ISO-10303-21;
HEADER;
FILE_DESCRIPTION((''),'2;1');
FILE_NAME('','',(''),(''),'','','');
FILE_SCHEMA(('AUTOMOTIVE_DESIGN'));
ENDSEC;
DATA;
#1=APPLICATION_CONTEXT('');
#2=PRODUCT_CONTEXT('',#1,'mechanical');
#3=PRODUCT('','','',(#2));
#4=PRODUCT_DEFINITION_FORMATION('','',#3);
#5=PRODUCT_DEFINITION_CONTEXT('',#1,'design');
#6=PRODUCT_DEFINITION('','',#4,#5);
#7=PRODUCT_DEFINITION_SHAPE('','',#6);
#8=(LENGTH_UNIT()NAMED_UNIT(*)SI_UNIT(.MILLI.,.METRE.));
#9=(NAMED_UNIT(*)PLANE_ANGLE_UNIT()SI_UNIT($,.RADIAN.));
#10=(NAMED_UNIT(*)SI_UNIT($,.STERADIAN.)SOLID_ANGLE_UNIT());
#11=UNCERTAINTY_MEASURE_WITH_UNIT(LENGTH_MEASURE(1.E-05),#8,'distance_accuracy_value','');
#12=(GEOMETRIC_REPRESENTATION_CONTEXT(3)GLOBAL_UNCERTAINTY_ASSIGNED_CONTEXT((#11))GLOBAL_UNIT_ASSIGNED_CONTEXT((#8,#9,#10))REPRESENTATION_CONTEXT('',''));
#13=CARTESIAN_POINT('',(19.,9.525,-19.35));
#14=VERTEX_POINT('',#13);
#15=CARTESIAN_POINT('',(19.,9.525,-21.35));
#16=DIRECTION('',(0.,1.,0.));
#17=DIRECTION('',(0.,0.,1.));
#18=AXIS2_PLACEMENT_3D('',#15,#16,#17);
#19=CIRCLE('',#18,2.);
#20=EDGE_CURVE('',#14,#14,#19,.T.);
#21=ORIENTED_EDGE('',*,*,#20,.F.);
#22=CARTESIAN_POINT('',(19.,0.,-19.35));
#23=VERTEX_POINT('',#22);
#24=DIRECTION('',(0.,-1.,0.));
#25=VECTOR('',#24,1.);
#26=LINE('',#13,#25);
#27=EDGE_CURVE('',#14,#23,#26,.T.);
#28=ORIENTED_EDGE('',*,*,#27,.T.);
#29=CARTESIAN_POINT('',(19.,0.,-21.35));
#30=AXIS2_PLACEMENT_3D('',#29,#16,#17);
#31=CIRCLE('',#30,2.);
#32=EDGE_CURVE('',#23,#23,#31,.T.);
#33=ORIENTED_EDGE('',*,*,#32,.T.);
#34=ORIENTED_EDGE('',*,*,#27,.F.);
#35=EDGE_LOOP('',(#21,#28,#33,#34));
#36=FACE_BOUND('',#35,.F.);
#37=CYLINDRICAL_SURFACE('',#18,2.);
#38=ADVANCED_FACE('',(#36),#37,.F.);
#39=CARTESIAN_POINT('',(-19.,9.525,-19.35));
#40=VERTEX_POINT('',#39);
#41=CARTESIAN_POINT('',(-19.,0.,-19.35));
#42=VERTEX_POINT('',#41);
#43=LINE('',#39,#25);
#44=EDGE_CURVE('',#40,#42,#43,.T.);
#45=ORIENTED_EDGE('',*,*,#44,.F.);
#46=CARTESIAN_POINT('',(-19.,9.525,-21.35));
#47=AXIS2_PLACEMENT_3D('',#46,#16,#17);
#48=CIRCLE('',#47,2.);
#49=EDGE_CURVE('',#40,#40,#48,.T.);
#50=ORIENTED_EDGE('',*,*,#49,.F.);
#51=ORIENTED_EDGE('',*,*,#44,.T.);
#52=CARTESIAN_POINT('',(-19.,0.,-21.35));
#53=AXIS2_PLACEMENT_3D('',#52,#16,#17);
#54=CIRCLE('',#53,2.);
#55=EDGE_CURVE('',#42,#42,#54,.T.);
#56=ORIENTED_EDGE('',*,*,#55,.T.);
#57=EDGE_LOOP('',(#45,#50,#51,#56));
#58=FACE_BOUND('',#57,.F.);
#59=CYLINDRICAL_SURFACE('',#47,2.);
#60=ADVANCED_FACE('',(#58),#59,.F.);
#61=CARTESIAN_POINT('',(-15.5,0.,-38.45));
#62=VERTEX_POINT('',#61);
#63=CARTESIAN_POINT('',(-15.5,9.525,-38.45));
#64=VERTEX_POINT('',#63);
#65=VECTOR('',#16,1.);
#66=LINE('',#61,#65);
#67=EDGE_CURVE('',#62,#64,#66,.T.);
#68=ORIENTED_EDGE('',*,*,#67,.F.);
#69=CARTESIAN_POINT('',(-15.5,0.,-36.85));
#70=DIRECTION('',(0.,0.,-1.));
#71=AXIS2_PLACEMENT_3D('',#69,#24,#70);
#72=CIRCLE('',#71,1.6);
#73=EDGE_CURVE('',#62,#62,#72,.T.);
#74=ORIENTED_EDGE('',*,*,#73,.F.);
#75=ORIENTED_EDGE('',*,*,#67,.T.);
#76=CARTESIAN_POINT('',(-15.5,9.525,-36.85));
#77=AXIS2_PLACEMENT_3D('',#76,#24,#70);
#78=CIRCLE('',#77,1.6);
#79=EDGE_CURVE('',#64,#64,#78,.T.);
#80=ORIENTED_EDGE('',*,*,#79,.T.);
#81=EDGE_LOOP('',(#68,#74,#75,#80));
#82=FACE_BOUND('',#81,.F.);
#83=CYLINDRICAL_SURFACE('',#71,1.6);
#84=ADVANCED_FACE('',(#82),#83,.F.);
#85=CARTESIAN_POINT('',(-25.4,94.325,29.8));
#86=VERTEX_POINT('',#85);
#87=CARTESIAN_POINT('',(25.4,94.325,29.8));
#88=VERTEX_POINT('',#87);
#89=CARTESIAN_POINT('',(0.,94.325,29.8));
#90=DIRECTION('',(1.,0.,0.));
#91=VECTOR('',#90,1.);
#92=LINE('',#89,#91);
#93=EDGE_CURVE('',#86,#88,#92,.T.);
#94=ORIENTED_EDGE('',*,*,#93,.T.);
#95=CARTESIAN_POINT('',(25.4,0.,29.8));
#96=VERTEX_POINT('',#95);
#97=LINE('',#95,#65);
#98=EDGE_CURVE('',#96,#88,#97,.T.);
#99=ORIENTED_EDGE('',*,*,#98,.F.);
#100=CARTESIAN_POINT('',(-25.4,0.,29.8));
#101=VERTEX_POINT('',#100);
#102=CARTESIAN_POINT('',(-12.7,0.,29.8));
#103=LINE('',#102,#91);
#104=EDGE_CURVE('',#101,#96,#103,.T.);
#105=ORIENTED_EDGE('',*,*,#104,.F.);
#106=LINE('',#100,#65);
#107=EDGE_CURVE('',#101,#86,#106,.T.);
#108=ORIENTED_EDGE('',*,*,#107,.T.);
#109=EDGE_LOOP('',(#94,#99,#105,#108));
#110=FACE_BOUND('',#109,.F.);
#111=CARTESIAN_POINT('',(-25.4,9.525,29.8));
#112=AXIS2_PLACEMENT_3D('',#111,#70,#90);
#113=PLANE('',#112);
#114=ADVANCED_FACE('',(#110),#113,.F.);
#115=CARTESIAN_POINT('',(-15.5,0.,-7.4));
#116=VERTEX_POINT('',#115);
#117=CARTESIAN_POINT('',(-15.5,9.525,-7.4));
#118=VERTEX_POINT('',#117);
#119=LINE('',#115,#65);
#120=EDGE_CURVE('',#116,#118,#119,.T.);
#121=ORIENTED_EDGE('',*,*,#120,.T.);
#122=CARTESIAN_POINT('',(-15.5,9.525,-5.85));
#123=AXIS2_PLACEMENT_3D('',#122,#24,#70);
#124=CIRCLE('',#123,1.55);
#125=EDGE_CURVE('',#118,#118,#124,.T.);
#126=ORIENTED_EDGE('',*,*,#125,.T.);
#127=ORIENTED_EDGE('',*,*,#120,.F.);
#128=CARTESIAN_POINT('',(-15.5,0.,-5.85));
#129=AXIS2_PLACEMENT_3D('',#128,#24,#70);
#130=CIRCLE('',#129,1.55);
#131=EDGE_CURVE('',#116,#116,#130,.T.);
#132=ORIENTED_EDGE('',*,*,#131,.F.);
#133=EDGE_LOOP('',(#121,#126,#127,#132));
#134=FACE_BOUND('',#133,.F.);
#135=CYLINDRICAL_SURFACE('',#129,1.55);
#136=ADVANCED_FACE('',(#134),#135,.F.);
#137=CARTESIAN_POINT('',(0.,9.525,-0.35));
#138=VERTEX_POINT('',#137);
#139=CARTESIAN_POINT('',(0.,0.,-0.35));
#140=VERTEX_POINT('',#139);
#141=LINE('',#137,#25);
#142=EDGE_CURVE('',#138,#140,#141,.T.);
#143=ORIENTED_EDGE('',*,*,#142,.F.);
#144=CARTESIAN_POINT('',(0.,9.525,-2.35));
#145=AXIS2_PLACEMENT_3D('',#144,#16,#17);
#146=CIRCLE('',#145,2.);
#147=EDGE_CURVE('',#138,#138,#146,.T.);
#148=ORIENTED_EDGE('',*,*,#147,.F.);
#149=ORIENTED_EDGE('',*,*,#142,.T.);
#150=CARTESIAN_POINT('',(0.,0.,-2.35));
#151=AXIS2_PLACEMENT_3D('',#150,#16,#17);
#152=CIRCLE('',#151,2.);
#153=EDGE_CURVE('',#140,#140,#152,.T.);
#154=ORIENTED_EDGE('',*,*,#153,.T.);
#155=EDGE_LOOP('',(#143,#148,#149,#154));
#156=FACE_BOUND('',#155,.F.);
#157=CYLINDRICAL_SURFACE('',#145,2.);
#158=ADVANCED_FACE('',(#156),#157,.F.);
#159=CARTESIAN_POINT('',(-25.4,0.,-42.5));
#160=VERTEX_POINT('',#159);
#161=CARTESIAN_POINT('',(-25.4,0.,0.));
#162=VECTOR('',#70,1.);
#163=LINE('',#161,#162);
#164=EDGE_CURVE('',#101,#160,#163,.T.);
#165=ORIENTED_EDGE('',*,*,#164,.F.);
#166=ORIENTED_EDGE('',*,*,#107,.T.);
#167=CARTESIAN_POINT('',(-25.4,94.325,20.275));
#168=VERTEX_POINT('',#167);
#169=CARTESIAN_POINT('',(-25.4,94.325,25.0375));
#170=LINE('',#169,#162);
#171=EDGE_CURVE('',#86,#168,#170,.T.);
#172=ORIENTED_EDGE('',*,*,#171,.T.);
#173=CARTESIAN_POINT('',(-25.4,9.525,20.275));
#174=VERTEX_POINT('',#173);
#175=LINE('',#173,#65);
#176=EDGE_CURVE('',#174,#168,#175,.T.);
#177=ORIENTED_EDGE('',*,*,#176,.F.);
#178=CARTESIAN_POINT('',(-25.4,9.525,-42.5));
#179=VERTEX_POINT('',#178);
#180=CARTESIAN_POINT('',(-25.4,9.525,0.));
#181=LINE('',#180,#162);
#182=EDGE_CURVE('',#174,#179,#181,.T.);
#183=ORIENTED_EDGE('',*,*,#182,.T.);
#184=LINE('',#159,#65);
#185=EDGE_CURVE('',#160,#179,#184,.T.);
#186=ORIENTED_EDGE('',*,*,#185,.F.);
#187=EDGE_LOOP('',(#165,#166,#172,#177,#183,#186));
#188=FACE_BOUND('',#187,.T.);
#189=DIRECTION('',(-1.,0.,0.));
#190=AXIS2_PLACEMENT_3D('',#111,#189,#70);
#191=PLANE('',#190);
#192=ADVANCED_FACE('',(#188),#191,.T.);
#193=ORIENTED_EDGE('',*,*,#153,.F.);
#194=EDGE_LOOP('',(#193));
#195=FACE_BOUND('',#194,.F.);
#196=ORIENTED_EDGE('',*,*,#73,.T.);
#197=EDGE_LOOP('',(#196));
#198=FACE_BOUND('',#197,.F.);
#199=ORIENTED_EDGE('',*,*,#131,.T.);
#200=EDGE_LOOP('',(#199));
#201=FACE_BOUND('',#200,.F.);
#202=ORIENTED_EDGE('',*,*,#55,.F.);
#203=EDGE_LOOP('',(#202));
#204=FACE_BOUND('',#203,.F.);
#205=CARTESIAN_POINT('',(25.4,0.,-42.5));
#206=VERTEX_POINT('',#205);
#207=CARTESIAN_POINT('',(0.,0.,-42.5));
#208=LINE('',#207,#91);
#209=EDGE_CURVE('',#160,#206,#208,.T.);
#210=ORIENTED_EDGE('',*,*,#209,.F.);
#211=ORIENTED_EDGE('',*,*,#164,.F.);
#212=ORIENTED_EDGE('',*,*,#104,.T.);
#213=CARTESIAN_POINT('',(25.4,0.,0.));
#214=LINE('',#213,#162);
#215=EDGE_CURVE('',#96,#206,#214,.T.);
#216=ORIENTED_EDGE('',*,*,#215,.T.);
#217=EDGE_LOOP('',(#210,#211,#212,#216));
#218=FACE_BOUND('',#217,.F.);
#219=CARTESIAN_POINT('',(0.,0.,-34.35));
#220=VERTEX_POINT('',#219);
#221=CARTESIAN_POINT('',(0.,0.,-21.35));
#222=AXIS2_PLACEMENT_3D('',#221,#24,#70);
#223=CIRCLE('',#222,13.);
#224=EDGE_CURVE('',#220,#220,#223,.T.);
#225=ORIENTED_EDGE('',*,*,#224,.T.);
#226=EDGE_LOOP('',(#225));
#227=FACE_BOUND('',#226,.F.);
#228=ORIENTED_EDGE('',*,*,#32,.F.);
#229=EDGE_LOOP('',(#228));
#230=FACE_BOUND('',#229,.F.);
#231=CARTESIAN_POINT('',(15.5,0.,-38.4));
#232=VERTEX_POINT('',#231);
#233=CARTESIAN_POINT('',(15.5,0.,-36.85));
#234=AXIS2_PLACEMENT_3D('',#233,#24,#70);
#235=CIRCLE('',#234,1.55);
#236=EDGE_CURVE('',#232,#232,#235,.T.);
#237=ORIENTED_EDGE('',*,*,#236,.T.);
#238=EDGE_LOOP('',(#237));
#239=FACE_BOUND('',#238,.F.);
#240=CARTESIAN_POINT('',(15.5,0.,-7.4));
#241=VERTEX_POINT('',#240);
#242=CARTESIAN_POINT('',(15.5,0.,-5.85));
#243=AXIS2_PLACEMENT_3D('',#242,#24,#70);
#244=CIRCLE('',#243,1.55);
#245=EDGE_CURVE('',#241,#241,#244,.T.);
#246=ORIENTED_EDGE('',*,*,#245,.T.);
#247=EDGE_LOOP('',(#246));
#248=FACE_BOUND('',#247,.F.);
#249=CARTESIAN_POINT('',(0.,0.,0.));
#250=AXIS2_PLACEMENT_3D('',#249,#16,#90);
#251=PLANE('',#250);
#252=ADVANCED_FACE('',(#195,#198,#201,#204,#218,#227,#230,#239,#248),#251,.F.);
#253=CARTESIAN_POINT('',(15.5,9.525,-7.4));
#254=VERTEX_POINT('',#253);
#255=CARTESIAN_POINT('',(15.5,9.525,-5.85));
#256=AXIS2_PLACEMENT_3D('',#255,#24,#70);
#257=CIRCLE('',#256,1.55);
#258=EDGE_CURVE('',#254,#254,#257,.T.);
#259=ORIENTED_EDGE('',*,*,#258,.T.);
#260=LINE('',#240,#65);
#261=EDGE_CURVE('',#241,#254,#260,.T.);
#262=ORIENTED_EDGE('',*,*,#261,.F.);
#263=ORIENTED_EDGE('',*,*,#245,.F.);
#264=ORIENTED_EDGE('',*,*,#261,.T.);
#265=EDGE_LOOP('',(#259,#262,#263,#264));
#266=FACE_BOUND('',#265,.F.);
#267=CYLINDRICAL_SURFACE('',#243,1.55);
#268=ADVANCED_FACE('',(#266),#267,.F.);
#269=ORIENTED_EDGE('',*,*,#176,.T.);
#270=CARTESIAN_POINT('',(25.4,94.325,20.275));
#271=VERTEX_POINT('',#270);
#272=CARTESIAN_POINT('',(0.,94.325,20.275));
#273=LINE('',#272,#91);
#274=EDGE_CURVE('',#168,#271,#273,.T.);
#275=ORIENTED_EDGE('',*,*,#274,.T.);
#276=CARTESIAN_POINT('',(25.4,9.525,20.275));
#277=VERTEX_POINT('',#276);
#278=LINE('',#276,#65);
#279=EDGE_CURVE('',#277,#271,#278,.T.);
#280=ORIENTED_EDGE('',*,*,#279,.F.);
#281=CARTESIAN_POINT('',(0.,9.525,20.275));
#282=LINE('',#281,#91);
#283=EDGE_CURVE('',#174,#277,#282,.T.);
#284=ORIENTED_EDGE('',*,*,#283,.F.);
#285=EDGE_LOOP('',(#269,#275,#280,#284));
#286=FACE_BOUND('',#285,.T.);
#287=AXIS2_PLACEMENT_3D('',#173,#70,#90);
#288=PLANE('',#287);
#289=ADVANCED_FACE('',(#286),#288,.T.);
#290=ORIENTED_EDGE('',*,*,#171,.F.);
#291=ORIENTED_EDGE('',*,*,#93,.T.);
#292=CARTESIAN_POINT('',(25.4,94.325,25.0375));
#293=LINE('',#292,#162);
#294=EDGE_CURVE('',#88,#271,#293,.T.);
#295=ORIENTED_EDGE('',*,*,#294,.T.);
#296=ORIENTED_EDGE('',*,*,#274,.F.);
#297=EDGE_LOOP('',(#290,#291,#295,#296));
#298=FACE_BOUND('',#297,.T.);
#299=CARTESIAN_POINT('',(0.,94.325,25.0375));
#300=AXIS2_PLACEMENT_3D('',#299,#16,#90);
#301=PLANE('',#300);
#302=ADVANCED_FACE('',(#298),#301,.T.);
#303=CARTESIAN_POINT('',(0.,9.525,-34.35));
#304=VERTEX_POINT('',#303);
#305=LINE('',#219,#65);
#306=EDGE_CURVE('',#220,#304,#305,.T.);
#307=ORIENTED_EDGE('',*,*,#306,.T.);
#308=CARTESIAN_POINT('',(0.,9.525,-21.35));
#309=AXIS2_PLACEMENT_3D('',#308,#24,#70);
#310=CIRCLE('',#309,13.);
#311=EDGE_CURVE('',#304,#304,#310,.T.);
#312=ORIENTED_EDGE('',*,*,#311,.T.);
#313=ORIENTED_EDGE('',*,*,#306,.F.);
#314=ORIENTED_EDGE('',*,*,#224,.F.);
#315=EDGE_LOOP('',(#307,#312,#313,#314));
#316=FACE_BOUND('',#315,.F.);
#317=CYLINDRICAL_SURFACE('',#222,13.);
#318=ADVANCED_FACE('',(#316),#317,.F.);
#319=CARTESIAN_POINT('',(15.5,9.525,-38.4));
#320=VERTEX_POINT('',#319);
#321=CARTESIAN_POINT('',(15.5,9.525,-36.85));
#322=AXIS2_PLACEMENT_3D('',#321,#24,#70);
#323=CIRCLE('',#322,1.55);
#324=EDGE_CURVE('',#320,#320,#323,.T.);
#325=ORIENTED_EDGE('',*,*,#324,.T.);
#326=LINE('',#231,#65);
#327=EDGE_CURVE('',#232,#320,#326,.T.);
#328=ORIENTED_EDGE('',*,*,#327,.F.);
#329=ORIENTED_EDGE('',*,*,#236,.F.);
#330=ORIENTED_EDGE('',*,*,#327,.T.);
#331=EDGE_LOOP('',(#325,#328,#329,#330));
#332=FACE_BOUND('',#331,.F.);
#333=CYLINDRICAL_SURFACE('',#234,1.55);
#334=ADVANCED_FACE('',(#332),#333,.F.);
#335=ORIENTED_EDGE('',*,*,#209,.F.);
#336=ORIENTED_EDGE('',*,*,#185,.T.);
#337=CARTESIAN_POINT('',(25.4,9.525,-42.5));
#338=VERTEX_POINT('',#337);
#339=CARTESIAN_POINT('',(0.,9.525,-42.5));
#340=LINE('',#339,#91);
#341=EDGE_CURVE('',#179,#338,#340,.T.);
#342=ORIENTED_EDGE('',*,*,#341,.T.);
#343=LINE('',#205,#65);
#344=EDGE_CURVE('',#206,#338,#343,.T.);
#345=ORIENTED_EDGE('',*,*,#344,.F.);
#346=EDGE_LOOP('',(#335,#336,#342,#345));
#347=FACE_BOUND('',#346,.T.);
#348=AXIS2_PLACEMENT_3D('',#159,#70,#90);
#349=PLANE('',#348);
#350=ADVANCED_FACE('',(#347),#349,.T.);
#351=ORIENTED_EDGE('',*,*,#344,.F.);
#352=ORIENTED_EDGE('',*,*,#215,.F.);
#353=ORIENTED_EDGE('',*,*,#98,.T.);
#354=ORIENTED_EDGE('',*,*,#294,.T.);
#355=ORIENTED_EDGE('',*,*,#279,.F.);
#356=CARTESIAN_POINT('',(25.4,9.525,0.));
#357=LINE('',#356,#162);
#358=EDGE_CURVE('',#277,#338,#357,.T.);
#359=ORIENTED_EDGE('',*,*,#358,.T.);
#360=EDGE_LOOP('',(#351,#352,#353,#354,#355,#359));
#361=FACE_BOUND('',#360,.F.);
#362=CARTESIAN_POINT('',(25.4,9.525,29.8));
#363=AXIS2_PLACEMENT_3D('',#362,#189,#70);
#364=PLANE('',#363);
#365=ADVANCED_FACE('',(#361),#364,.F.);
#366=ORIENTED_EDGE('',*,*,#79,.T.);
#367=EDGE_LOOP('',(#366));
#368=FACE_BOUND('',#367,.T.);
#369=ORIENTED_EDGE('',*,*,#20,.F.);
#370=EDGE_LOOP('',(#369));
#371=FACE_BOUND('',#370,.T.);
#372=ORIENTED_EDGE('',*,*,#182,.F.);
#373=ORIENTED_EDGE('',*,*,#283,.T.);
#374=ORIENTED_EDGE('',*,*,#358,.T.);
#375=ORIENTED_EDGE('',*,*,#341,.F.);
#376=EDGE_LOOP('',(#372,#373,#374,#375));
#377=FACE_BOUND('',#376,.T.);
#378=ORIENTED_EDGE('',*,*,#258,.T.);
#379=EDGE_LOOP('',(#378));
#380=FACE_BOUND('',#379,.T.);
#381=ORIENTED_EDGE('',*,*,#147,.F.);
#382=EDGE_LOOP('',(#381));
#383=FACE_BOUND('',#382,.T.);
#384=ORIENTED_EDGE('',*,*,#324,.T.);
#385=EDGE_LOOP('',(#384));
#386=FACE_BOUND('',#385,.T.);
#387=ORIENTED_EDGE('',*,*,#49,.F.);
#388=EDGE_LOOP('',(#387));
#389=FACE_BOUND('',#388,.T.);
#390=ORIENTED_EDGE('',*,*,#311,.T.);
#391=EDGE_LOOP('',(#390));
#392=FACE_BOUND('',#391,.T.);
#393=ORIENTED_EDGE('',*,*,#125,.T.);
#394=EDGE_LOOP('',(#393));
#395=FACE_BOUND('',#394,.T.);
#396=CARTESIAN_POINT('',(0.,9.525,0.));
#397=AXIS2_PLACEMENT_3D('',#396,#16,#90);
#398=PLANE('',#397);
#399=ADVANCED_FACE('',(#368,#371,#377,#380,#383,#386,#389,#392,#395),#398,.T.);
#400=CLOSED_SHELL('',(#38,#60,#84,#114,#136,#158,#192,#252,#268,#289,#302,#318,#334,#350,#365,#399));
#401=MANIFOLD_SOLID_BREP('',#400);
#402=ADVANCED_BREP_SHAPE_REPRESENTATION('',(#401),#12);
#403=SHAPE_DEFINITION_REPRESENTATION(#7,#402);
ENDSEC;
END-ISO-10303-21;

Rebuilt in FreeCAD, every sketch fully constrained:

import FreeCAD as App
import Part
import Sketcher
from FreeCAD import Vector
Q = App.Units.Quantity

doc = App.newDocument("Part")
body = doc.addObject("PartDesign::Body", "Body")

sketch1 = body.newObject("Sketcher::SketchObject", "Sketch")
sketch1.AttachmentSupport = (doc.getObject("XZ_Plane"), [""])
sketch1.MapMode = "FlatFace"
sketch1.addGeometry([
    Part.LineSegment(Vector(-25, -42, 0), Vector(-25, 42, 0)),
    Part.LineSegment(Vector(-25, 42, 0), Vector(25, 42, 0)),
    Part.LineSegment(Vector(25, 42, 0), Vector(25, -42, 0)),
    Part.LineSegment(Vector(25, -42, 0), Vector(-25, -42, 0)),
], False)
sketch1.addConstraint([
    Sketcher.Constraint("Coincident", 0, 2, 1, 1),
    Sketcher.Constraint("Coincident", 1, 2, 2, 1),
    Sketcher.Constraint("Coincident", 2, 2, 3, 1),
    Sketcher.Constraint("Coincident", 3, 2, 0, 1),
    Sketcher.Constraint("Vertical", 0),
    Sketcher.Constraint("Horizontal", 1),
    Sketcher.Constraint("Vertical", 2),
    Sketcher.Constraint("Horizontal", 3),
    Sketcher.Constraint("Symmetric", 0, 2, 2, 2, -1, 1),
    Sketcher.Constraint("DistanceY", 0, 1, 0, 2, Q("85 mm")),
    Sketcher.Constraint("DistanceX", 1, 1, 1, 2, Q("50.8 mm")),
])
pad1 = body.newObject("PartDesign::Pad", "Pad")
pad1.Profile = sketch1
pad1.Length = 9.525
pad1.Reversed = True

sketch2 = body.newObject("Sketcher::SketchObject", "Sketch001")
sketch2.AttachmentSupport = (doc.getObject("XZ_Plane"), [""])
sketch2.MapMode = "FlatFace"
sketch2.addGeometry(Part.Circle(Vector(0, -21, 0), Vector(0, 0, 1), 13), False)
sketch2.addConstraint([
    Sketcher.Constraint("PointOnObject", 0, 3, -2),
    Sketcher.Constraint("Diameter", 0, Q("26 mm")),
    Sketcher.Constraint("DistanceY", 0, 3, -1, 1, Q("21.35 mm")),
])
pocket1 = body.newObject("PartDesign::Pocket", "Pocket")
pocket1.Profile = sketch2
pocket1.Type = "ThroughAll"

sketch3 = body.newObject("Sketcher::SketchObject", "Sketch002")
sketch3.AttachmentSupport = (doc.getObject("XZ_Plane"), [""])
sketch3.MapMode = "FlatFace"
sketch3.addGeometry([
    Part.Circle(Vector(-15.5, -5.8, 0), Vector(0, 0, 1), 1.6),
    Part.Circle(Vector(15.5, -5.8, 0), Vector(0, 0, 1), 1.6),
    Part.Circle(Vector(15.5, -36.9, 0), Vector(0, 0, 1), 1.6),
    Part.Circle(Vector(-15.5, -36.9, 0), Vector(0, 0, 1), 1.6),
], False)
sketch3.addConstraint([
    Sketcher.Constraint("Equal", 0, 1),
    Sketcher.Constraint("Equal", 1, 2),
    Sketcher.Constraint("Symmetric", 0, 3, 1, 3, -2),
    Sketcher.Constraint("Symmetric", 2, 3, 3, 3, -2),
    Sketcher.Constraint("Vertical", 1, 3, 2, 3),
    Sketcher.Constraint("Diameter", 0, Q("3.1 mm")),
    Sketcher.Constraint("Diameter", 3, Q("3.2 mm")),
    Sketcher.Constraint("DistanceX", 0, 3, 1, 3, Q("31 mm")),
    Sketcher.Constraint("DistanceY", 2, 3, 1, 3, Q("31 mm")),
    Sketcher.Constraint("DistanceY", 0, 3, -1, 1, Q("5.85 mm")),
])
pocket2 = body.newObject("PartDesign::Pocket", "Pocket001")
pocket2.Profile = sketch3
pocket2.Type = "ThroughAll"

sketch4 = body.newObject("Sketcher::SketchObject", "Sketch003")
sketch4.AttachmentSupport = (doc.getObject("XZ_Plane"), [""])
sketch4.MapMode = "FlatFace"
sketch4.AttachmentOffset = App.Placement(Vector(0, 0, -9.525), App.Rotation())
sketch4.addGeometry([
    Part.Circle(Vector(-19, -21.4, 0), Vector(0, 0, 1), 2),
    Part.Circle(Vector(19, -21.4, 0), Vector(0, 0, 1), 2),
    Part.Circle(Vector(0, -2.4, 0), Vector(0, 0, 1), 2),
], False)
sketch4.addConstraint([
    Sketcher.Constraint("Equal", 0, 1),
    Sketcher.Constraint("Equal", 1, 2),
    Sketcher.Constraint("Symmetric", 0, 3, 1, 3, -2),
    Sketcher.Constraint("PointOnObject", 2, 3, -2),
    Sketcher.Constraint("Diameter", 0, Q("4 mm")),
    Sketcher.Constraint("DistanceX", 0, 3, -1, 1, Q("19 mm")),
    Sketcher.Constraint("DistanceY", 0, 3, 2, 3, Q("19 mm")),
    Sketcher.Constraint("DistanceY", 0, 3, -1, 1, Q("21.35 mm")),
])
pocket3 = body.newObject("PartDesign::Pocket", "Pocket002")
pocket3.Profile = sketch4
pocket3.Type = "ThroughAll"
pocket3.Reversed = True

sketch5 = body.newObject("Sketcher::SketchObject", "Sketch004")
sketch5.AttachmentSupport = (doc.getObject("XZ_Plane"), [""])
sketch5.MapMode = "FlatFace"
sketch5.AttachmentOffset = App.Placement(Vector(0, 0, -9.525), App.Rotation())
sketch5.addGeometry([
    Part.LineSegment(Vector(-25, 30, 0), Vector(-25, 42, 0)),
    Part.LineSegment(Vector(-25, 42, 0), Vector(25, 42, 0)),
    Part.LineSegment(Vector(25, 42, 0), Vector(25, 30, 0)),
    Part.LineSegment(Vector(25, 30, 0), Vector(-25, 30, 0)),
], False)
sketch5.addConstraint([
    Sketcher.Constraint("Coincident", 0, 2, 1, 1),
    Sketcher.Constraint("Coincident", 1, 2, 2, 1),
    Sketcher.Constraint("Coincident", 2, 2, 3, 1),
    Sketcher.Constraint("Coincident", 3, 2, 0, 1),
    Sketcher.Constraint("Vertical", 0),
    Sketcher.Constraint("Horizontal", 1),
    Sketcher.Constraint("Vertical", 2),
    Sketcher.Constraint("Horizontal", 3),
    Sketcher.Constraint("DistanceX", 1, 1, 1, 2, Q("50.8 mm")),
    Sketcher.Constraint("DistanceY", 0, 1, 0, 2, Q("12.7 mm")),
    Sketcher.Constraint("DistanceX", 0, 2, -1, 1, Q("25.4 mm")),
    Sketcher.Constraint("DistanceY", -1, 1, 0, 2, Q("42.5 mm")),
])
pocket4 = body.newObject("PartDesign::Pocket", "Pocket003")
pocket4.Profile = sketch5
pocket4.Type = "ThroughAll"
pocket4.Reversed = True

sketch6 = body.newObject("Sketcher::SketchObject", "Sketch005")
sketch6.AttachmentSupport = (doc.getObject("XZ_Plane"), [""])
sketch6.MapMode = "FlatFace"
sketch6.AttachmentOffset = App.Placement(Vector(0, 0, -9.525), App.Rotation())
sketch6.addGeometry([
    Part.LineSegment(Vector(-25, 20, 0), Vector(-25, 30, 0)),
    Part.LineSegment(Vector(-25, 30, 0), Vector(25, 30, 0)),
    Part.LineSegment(Vector(25, 30, 0), Vector(25, 20, 0)),
    Part.LineSegment(Vector(25, 20, 0), Vector(-25, 20, 0)),
], False)
sketch6.addConstraint([
    Sketcher.Constraint("Coincident", 0, 2, 1, 1),
    Sketcher.Constraint("Coincident", 1, 2, 2, 1),
    Sketcher.Constraint("Coincident", 2, 2, 3, 1),
    Sketcher.Constraint("Coincident", 3, 2, 0, 1),
    Sketcher.Constraint("Vertical", 0),
    Sketcher.Constraint("Horizontal", 1),
    Sketcher.Constraint("Vertical", 2),
    Sketcher.Constraint("Horizontal", 3),
    Sketcher.Constraint("DistanceX", 1, 1, 1, 2, Q("50.8 mm")),
    Sketcher.Constraint("DistanceX", 0, 2, -1, 1, Q("25.4 mm")),
    Sketcher.Constraint("DistanceY", -1, 1, 0, 2, Q("29.8 mm")),
    Sketcher.Constraint("DistanceY", 0, 1, 0, 2, Q("9.525 mm")),
])
pad2 = body.newObject("PartDesign::Pad", "Pad001")
pad2.Profile = sketch6
pad2.Length = 84.8
pad2.Reversed = True

doc.recompute()
